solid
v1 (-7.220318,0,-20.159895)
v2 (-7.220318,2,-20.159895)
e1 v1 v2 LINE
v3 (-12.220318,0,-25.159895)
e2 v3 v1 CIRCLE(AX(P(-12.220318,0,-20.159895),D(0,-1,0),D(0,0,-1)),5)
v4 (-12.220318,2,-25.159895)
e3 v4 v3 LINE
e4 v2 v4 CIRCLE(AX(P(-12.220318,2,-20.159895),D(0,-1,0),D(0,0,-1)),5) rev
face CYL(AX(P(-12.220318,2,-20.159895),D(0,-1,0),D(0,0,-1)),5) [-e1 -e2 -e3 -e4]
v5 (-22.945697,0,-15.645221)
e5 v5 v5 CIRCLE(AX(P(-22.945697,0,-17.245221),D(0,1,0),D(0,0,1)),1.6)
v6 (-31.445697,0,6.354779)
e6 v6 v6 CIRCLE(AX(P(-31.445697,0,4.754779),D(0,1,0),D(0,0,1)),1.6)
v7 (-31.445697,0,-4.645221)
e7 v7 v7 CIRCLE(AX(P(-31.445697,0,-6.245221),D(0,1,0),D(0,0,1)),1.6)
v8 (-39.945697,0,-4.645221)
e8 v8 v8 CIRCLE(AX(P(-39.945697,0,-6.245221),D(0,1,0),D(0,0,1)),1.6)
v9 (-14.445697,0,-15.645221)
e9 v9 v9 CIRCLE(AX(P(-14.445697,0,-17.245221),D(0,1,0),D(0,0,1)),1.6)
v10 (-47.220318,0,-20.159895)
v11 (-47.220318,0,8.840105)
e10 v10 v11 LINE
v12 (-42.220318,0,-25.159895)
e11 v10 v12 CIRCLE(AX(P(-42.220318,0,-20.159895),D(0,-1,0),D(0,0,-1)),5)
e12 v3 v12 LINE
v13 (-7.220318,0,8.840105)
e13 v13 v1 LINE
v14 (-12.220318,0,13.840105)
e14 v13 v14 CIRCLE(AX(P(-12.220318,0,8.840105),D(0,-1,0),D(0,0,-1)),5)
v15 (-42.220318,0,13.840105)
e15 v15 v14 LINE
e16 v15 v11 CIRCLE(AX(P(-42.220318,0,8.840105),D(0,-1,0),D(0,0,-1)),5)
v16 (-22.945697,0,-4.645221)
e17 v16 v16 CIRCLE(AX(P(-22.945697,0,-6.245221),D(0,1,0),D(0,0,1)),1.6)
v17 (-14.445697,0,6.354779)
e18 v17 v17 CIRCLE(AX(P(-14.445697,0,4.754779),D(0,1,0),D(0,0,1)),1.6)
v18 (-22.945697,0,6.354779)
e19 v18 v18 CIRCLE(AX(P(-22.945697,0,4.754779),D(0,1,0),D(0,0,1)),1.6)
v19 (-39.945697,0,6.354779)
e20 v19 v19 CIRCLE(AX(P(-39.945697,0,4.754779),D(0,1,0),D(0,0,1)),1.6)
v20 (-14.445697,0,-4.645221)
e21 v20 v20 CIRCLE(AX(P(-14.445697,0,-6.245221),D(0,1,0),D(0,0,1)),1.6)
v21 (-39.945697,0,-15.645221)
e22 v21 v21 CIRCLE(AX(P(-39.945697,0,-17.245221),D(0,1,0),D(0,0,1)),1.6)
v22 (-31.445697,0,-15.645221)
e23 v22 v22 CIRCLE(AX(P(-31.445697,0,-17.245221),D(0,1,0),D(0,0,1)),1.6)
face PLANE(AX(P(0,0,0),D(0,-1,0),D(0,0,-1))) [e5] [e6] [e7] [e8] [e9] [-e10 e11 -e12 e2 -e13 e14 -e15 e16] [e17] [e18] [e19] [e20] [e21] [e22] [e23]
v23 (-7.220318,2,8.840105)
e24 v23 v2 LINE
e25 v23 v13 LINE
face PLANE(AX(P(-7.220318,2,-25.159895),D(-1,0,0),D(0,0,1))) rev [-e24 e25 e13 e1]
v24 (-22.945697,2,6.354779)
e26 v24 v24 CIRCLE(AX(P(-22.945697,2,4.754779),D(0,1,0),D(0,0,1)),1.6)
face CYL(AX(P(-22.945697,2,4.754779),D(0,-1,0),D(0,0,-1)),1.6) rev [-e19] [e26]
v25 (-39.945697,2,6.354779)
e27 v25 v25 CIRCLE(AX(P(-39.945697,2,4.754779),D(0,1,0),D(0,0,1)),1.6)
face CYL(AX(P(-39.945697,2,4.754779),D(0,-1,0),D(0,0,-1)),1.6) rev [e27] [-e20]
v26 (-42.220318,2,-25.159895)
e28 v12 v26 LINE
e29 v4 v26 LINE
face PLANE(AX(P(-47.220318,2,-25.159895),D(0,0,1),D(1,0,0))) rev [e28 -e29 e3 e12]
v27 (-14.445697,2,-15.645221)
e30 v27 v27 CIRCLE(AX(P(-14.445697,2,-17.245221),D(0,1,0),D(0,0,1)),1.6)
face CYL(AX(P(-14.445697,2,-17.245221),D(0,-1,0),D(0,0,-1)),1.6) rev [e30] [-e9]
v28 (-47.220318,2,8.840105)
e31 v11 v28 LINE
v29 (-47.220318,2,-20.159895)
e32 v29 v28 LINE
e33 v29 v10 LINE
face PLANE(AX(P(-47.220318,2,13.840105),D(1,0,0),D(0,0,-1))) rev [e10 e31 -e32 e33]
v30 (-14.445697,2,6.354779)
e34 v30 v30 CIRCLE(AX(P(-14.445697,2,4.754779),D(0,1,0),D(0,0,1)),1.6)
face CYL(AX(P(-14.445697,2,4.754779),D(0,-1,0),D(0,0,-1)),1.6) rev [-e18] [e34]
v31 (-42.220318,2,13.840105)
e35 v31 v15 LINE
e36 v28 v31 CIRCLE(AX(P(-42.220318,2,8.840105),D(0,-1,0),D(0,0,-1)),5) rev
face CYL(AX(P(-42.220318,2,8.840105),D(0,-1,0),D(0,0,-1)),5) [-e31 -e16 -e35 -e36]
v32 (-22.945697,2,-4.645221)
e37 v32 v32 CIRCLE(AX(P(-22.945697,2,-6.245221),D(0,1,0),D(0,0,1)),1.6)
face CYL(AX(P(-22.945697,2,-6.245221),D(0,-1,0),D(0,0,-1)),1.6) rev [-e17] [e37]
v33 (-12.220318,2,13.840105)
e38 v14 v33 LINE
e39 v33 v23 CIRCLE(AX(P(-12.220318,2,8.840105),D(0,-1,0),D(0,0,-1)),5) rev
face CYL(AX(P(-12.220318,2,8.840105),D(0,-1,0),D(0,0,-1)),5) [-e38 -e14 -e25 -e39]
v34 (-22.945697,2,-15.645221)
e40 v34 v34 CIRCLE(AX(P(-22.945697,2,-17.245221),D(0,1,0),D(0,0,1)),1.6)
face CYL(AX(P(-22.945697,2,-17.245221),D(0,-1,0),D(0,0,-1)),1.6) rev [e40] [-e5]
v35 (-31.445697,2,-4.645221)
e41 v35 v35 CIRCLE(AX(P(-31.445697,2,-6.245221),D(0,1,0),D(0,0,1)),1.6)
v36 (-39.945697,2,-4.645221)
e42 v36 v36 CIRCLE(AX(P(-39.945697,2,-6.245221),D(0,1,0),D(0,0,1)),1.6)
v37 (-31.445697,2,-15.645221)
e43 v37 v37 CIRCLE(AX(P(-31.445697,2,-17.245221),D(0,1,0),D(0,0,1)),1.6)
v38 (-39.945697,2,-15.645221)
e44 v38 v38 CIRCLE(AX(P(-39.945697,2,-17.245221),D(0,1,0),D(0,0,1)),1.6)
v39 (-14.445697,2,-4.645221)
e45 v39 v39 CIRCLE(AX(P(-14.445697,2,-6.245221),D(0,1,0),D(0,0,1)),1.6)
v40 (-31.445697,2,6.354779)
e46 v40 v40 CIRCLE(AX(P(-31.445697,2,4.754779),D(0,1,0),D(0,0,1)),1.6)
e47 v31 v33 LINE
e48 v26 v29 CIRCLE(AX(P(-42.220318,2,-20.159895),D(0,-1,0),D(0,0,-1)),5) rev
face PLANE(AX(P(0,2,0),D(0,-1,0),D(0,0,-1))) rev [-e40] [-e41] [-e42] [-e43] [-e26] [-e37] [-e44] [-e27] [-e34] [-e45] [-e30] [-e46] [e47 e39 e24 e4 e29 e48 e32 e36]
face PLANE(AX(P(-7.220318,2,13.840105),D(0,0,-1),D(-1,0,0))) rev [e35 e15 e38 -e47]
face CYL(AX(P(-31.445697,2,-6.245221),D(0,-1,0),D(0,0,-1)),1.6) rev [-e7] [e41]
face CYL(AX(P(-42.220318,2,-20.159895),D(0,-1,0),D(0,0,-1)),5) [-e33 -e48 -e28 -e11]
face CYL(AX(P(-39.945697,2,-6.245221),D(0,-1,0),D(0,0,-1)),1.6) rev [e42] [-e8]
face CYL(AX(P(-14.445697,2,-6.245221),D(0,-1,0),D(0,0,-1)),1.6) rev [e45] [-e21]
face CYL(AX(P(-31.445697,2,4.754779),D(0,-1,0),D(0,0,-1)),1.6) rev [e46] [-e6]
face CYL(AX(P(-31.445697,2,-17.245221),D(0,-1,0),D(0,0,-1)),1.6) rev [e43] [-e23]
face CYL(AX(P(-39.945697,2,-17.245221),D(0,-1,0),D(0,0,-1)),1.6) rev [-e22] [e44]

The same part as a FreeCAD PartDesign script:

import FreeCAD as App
import Part
import Sketcher


def edges_at(feature, points):
    """Names of the edges that pass closest to the given points."""
    edges = feature.Shape.Edges
    near = lambda p: min(range(len(edges)), key=lambda i: edges[i].distToShape(Part.Vertex(*p))[0])
    return sorted({f"Edge{near(p) + 1}" for p in points})


def add_polygon(sketch, points):
    """Adds a closed chain of lines whose ends are joined by coincident constraints."""
    first, n = sketch.GeometryCount, len(points)
    for a, b in zip(points, points[1:] + points[:1]):
        sketch.addGeometry(Part.LineSegment(App.Vector(*a, 0), App.Vector(*b, 0)), False)
    for i in range(n):
        sketch.addConstraint(Sketcher.Constraint("Coincident", first + i, 2, first + (i + 1) % n, 1))

doc = App.newDocument("Part")
params = doc.addObject("Spreadsheet::Sheet", "Params")
for row, (alias, value) in enumerate([
    ("sketch1_diameter", "3.2 mm"),
    ("sketch1_width", "40 mm"),
    ("sketch1_height", "39 mm"),
    ("pad1_length", "2 mm"),
    ("fillet_radius", "5 mm"),
], start=1):
    params.set(f"A{row}", alias)
    params.set(f"B{row}", "=" + value)
    params.setAlias(f"B{row}", alias)

body = doc.addObject("PartDesign::Body", "Body")

sketch1 = body.newObject("Sketcher::SketchObject", "Sketch")
sketch1.AttachmentSupport = (doc.getObject("XZ_Plane"), [""])
sketch1.MapMode = "FlatFace"
add_polygon(sketch1, [(-47.2, -25.2), (-47.2, 13.8), (-7.2, 13.8), (-7.2, -25.2)])
sketch1.addGeometry(Part.Circle(App.Vector(-39.9, 4.8, 0), App.Vector(0, 0, 1), 1.6), False)
sketch1.addGeometry(Part.Circle(App.Vector(-31.4, 4.8, 0), App.Vector(0, 0, 1), 1.6), False)
sketch1.addGeometry(Part.Circle(App.Vector(-22.9, 4.8, 0), App.Vector(0, 0, 1), 1.6), False)
sketch1.addGeometry(Part.Circle(App.Vector(-14.4, 4.8, 0), App.Vector(0, 0, 1), 1.6), False)
sketch1.addGeometry(Part.Circle(App.Vector(-39.9, -6.2, 0), App.Vector(0, 0, 1), 1.6), False)
sketch1.addGeometry(Part.Circle(App.Vector(-31.4, -6.2, 0), App.Vector(0, 0, 1), 1.6), False)
sketch1.addGeometry(Part.Circle(App.Vector(-39.9, -17.2, 0), App.Vector(0, 0, 1), 1.6), False)
sketch1.addGeometry(Part.Circle(App.Vector(-31.4, -17.2, 0), App.Vector(0, 0, 1), 1.6), False)
sketch1.addGeometry(Part.Circle(App.Vector(-22.9, -6.2, 0), App.Vector(0, 0, 1), 1.6), False)
sketch1.addGeometry(Part.Circle(App.Vector(-14.4, -6.2, 0), App.Vector(0, 0, 1), 1.6), False)
sketch1.addGeometry(Part.Circle(App.Vector(-22.9, -17.2, 0), App.Vector(0, 0, 1), 1.6), False)
sketch1.addGeometry(Part.Circle(App.Vector(-14.4, -17.2, 0), App.Vector(0, 0, 1), 1.6), False)
sketch1.addConstraint([
    Sketcher.Constraint("Vertical", 0),
    Sketcher.Constraint("Horizontal", 1),
    Sketcher.Constraint("Vertical", 2),
    Sketcher.Constraint("Horizontal", 3),
    Sketcher.Constraint("Equal", 4, 5),
    Sketcher.Constraint("Equal", 5, 6),
    Sketcher.Constraint("Equal", 6, 7),
    Sketcher.Constraint("Equal", 7, 8),
    Sketcher.Constraint("Equal", 8, 9),
    Sketcher.Constraint("Equal", 9, 10),
    Sketcher.Constraint("Equal", 10, 11),
    Sketcher.Constraint("Equal", 11, 12),
    Sketcher.Constraint("Equal", 12, 13),
    Sketcher.Constraint("Equal", 13, 14),
    Sketcher.Constraint("Equal", 14, 15),
    Sketcher.Constraint("Horizontal", 4, 3, 5, 3),
    Sketcher.Constraint("Horizontal", 5, 3, 6, 3),
    Sketcher.Constraint("Horizontal", 6, 3, 7, 3),
    Sketcher.Constraint("Horizontal", 8, 3, 9, 3),
    Sketcher.Constraint("Horizontal", 10, 3, 11, 3),
    Sketcher.Constraint("Horizontal", 9, 3, 12, 3),
    Sketcher.Constraint("Horizontal", 12, 3, 13, 3),
    Sketcher.Constraint("Horizontal", 11, 3, 14, 3),
    Sketcher.Constraint("Horizontal", 14, 3, 15, 3),
    Sketcher.Constraint("Vertical", 4, 3, 8, 3),
    Sketcher.Constraint("Vertical", 5, 3, 9, 3),
    Sketcher.Constraint("Vertical", 8, 3, 10, 3),
    Sketcher.Constraint("Vertical", 9, 3, 11, 3),
    Sketcher.Constraint("Vertical", 6, 3, 12, 3),
    Sketcher.Constraint("Vertical", 7, 3, 13, 3),
    Sketcher.Constraint("Vertical", 12, 3, 14, 3),
    Sketcher.Constraint("Vertical", 13, 3, 15, 3),
    Sketcher.Constraint("Diameter", 4, 3.2),
    Sketcher.Constraint("DistanceX", 1, 1, 1, 2, 40.0),
    Sketcher.Constraint("DistanceY", 0, 1, 0, 2, 39.0),
    Sketcher.Constraint("DistanceX", 4, 3, 6, 3, 17.0),
    Sketcher.Constraint("DistanceX", 5, 3, 7, 3, 17.0),
    Sketcher.Constraint("DistanceY", 8, 3, 4, 3, 11.0),
    Sketcher.Constraint("DistanceY", 10, 3, 8, 3, 11.0),
    Sketcher.Constraint("DistanceX", 4, 3, 5, 3, 8.5),
    Sketcher.Constraint("DistanceY", -1, 1, 4, 3, 4.754779),
    Sketcher.Constraint("DistanceX", 0, 2, 4, 3, 7.274621),
    Sketcher.Constraint("DistanceX", 4, 3, -1, 1, 39.945697),
    Sketcher.Constraint("DistanceY", -1, 1, 0, 2, 13.840105),
])
sketch1.setExpression("Constraints[36]", "Params.sketch1_diameter")
sketch1.setExpression("Constraints[37]", "Params.sketch1_width")
sketch1.setExpression("Constraints[38]", "Params.sketch1_height")
pad1 = body.newObject("PartDesign::Pad", "Pad")
pad1.Profile = sketch1
pad1.setExpression("Length", "Params.pad1_length")
pad1.Reversed = True
doc.recompute()

fillet = body.newObject("PartDesign::Fillet", "Fillet")
fillet.Base = (pad1, edges_at(pad1, [
    (-47.22, 1, -25.16),
    (-7.22, 1, -25.16),
    (-7.22, 1, 13.84),
    (-47.22, 1, 13.84),
]))
fillet.setExpression("Radius", "Params.fillet_radius")

doc.recompute()
